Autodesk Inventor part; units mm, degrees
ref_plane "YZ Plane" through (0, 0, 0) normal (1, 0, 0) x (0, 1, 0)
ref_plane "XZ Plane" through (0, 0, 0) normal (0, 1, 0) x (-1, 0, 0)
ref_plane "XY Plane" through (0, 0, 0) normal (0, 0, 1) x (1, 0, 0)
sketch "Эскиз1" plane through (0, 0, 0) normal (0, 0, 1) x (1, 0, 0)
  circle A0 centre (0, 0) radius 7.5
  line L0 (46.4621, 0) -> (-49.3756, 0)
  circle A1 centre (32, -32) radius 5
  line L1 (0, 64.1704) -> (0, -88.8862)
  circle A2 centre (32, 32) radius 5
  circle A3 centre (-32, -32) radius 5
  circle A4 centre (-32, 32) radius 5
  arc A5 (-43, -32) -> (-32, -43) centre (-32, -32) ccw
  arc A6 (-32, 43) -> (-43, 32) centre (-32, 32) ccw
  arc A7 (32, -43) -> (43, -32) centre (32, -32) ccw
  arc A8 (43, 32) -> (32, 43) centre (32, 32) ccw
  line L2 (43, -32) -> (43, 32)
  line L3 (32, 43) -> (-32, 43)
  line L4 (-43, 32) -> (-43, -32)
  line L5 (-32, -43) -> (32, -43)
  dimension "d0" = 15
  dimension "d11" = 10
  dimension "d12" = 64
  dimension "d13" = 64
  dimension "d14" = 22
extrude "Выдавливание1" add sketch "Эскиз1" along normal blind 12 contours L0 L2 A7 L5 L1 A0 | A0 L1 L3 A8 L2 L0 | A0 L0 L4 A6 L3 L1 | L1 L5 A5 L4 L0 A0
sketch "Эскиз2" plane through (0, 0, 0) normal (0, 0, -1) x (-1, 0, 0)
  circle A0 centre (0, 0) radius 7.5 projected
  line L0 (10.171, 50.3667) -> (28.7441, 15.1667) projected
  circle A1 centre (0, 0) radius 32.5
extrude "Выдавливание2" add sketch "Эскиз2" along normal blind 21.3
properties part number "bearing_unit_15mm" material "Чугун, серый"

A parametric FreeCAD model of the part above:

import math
import FreeCAD as App
import Part
import Sketcher
from FreeCAD import Vector
Q = App.Units.Quantity

doc = App.newDocument("Part")
body = doc.addObject("PartDesign::Body", "Body")

sketch1 = body.newObject("Sketcher::SketchObject", "Sketch")
sketch1.AttachmentSupport = (doc.getObject("XY_Plane"), [""])
sketch1.MapMode = "FlatFace"
sketch1.addGeometry([
    Part.LineSegment(Vector(43, -32, 0), Vector(43, 32, 0)),
    Part.ArcOfCircle(Part.Circle(Vector(32, 32, 0), Vector(0, 0, 1), 11), math.radians(0), math.radians(90)),
    Part.LineSegment(Vector(32, 43, 0), Vector(-32, 43, 0)),
    Part.ArcOfCircle(Part.Circle(Vector(-32, 32, 0), Vector(0, 0, 1), 11), math.radians(90), math.radians(180)),
    Part.LineSegment(Vector(-43, 32, 0), Vector(-43, -32, 0)),
    Part.ArcOfCircle(Part.Circle(Vector(-32, -32, 0), Vector(0, 0, 1), 11), math.radians(180), math.radians(270)),
    Part.LineSegment(Vector(-32, -43, 0), Vector(32, -43, 0)),
    Part.ArcOfCircle(Part.Circle(Vector(32, -32, 0), Vector(0, 0, 1), 11), math.radians(-90), math.radians(0)),
    Part.Circle(Vector(0, 0, 0), Vector(0, 0, 1), 7.5),
    Part.Circle(Vector(32, -32, 0), Vector(0, 0, 1), 5),
    Part.Circle(Vector(32, 32, 0), Vector(0, 0, 1), 5),
    Part.Circle(Vector(-32, -32, 0), Vector(0, 0, 1), 5),
    Part.Circle(Vector(-32, 32, 0), Vector(0, 0, 1), 5),
], False)
sketch1.addConstraint([
    Sketcher.Constraint("Tangent", 0, 2, 1, 1),
    Sketcher.Constraint("Tangent", 1, 2, 2, 1),
    Sketcher.Constraint("Tangent", 2, 2, 3, 1),
    Sketcher.Constraint("Tangent", 3, 2, 4, 1),
    Sketcher.Constraint("Tangent", 4, 2, 5, 1),
    Sketcher.Constraint("Tangent", 5, 2, 6, 1),
    Sketcher.Constraint("Tangent", 6, 2, 7, 1),
    Sketcher.Constraint("Tangent", 7, 2, 0, 1),
    Sketcher.Constraint("Vertical", 0),
    Sketcher.Constraint("Horizontal", 2),
    Sketcher.Constraint("Vertical", 4),
    Sketcher.Constraint("Horizontal", 6),
    Sketcher.Constraint("Coincident", 8, 3, -1, 1),
    Sketcher.Constraint("Coincident", 9, 3, 7, 3),
    Sketcher.Constraint("Coincident", 10, 3, 1, 3),
    Sketcher.Constraint("Coincident", 11, 3, 5, 3),
    Sketcher.Constraint("Coincident", 12, 3, 3, 3),
    Sketcher.Constraint("Equal", 1, 3),
    Sketcher.Constraint("Equal", 3, 5),
    Sketcher.Constraint("Equal", 5, 7),
    Sketcher.Constraint("Equal", 9, 10),
    Sketcher.Constraint("Equal", 10, 11),
    Sketcher.Constraint("Equal", 11, 12),
    Sketcher.Constraint("Symmetric", 1, 3, 5, 3, -1, 1),
    Sketcher.Constraint("Equal", 6, 0),
    Sketcher.Constraint("Diameter", 8, Q("15 mm")),
    Sketcher.Constraint("Diameter", 9, Q("10 mm")),
    Sketcher.Constraint("Radius", 1, Q("11 mm")),
    Sketcher.Constraint("DistanceX", 2, 2, 2, 1, Q("64 mm")),
])
pad1 = body.newObject("PartDesign::Pad", "Pad")
pad1.Profile = sketch1
pad1.Length = 12

sketch2 = body.newObject("Sketcher::SketchObject", "Sketch001")
sketch2.AttachmentSupport = (doc.getObject("XY_Plane"), [""])
sketch2.MapMode = "FlatFace"
sketch2.addGeometry([
    Part.Circle(Vector(0, 0, 0), Vector(0, 0, 1), 32.5),
    Part.Circle(Vector(0, 0, 0), Vector(0, 0, 1), 7.5),
], False)
sketch2.addConstraint([
    Sketcher.Constraint("Coincident", 0, 3, -1, 1),
    Sketcher.Constraint("Coincident", 1, 3, -1, 1),
    Sketcher.Constraint("Diameter", 0, Q("65 mm")),
    Sketcher.Constraint("Diameter", 1, Q("15 mm")),
])
pad2 = body.newObject("PartDesign::Pad", "Pad001")
pad2.Profile = sketch2
pad2.Length = 21.3
pad2.Reversed = True

doc.recompute()
